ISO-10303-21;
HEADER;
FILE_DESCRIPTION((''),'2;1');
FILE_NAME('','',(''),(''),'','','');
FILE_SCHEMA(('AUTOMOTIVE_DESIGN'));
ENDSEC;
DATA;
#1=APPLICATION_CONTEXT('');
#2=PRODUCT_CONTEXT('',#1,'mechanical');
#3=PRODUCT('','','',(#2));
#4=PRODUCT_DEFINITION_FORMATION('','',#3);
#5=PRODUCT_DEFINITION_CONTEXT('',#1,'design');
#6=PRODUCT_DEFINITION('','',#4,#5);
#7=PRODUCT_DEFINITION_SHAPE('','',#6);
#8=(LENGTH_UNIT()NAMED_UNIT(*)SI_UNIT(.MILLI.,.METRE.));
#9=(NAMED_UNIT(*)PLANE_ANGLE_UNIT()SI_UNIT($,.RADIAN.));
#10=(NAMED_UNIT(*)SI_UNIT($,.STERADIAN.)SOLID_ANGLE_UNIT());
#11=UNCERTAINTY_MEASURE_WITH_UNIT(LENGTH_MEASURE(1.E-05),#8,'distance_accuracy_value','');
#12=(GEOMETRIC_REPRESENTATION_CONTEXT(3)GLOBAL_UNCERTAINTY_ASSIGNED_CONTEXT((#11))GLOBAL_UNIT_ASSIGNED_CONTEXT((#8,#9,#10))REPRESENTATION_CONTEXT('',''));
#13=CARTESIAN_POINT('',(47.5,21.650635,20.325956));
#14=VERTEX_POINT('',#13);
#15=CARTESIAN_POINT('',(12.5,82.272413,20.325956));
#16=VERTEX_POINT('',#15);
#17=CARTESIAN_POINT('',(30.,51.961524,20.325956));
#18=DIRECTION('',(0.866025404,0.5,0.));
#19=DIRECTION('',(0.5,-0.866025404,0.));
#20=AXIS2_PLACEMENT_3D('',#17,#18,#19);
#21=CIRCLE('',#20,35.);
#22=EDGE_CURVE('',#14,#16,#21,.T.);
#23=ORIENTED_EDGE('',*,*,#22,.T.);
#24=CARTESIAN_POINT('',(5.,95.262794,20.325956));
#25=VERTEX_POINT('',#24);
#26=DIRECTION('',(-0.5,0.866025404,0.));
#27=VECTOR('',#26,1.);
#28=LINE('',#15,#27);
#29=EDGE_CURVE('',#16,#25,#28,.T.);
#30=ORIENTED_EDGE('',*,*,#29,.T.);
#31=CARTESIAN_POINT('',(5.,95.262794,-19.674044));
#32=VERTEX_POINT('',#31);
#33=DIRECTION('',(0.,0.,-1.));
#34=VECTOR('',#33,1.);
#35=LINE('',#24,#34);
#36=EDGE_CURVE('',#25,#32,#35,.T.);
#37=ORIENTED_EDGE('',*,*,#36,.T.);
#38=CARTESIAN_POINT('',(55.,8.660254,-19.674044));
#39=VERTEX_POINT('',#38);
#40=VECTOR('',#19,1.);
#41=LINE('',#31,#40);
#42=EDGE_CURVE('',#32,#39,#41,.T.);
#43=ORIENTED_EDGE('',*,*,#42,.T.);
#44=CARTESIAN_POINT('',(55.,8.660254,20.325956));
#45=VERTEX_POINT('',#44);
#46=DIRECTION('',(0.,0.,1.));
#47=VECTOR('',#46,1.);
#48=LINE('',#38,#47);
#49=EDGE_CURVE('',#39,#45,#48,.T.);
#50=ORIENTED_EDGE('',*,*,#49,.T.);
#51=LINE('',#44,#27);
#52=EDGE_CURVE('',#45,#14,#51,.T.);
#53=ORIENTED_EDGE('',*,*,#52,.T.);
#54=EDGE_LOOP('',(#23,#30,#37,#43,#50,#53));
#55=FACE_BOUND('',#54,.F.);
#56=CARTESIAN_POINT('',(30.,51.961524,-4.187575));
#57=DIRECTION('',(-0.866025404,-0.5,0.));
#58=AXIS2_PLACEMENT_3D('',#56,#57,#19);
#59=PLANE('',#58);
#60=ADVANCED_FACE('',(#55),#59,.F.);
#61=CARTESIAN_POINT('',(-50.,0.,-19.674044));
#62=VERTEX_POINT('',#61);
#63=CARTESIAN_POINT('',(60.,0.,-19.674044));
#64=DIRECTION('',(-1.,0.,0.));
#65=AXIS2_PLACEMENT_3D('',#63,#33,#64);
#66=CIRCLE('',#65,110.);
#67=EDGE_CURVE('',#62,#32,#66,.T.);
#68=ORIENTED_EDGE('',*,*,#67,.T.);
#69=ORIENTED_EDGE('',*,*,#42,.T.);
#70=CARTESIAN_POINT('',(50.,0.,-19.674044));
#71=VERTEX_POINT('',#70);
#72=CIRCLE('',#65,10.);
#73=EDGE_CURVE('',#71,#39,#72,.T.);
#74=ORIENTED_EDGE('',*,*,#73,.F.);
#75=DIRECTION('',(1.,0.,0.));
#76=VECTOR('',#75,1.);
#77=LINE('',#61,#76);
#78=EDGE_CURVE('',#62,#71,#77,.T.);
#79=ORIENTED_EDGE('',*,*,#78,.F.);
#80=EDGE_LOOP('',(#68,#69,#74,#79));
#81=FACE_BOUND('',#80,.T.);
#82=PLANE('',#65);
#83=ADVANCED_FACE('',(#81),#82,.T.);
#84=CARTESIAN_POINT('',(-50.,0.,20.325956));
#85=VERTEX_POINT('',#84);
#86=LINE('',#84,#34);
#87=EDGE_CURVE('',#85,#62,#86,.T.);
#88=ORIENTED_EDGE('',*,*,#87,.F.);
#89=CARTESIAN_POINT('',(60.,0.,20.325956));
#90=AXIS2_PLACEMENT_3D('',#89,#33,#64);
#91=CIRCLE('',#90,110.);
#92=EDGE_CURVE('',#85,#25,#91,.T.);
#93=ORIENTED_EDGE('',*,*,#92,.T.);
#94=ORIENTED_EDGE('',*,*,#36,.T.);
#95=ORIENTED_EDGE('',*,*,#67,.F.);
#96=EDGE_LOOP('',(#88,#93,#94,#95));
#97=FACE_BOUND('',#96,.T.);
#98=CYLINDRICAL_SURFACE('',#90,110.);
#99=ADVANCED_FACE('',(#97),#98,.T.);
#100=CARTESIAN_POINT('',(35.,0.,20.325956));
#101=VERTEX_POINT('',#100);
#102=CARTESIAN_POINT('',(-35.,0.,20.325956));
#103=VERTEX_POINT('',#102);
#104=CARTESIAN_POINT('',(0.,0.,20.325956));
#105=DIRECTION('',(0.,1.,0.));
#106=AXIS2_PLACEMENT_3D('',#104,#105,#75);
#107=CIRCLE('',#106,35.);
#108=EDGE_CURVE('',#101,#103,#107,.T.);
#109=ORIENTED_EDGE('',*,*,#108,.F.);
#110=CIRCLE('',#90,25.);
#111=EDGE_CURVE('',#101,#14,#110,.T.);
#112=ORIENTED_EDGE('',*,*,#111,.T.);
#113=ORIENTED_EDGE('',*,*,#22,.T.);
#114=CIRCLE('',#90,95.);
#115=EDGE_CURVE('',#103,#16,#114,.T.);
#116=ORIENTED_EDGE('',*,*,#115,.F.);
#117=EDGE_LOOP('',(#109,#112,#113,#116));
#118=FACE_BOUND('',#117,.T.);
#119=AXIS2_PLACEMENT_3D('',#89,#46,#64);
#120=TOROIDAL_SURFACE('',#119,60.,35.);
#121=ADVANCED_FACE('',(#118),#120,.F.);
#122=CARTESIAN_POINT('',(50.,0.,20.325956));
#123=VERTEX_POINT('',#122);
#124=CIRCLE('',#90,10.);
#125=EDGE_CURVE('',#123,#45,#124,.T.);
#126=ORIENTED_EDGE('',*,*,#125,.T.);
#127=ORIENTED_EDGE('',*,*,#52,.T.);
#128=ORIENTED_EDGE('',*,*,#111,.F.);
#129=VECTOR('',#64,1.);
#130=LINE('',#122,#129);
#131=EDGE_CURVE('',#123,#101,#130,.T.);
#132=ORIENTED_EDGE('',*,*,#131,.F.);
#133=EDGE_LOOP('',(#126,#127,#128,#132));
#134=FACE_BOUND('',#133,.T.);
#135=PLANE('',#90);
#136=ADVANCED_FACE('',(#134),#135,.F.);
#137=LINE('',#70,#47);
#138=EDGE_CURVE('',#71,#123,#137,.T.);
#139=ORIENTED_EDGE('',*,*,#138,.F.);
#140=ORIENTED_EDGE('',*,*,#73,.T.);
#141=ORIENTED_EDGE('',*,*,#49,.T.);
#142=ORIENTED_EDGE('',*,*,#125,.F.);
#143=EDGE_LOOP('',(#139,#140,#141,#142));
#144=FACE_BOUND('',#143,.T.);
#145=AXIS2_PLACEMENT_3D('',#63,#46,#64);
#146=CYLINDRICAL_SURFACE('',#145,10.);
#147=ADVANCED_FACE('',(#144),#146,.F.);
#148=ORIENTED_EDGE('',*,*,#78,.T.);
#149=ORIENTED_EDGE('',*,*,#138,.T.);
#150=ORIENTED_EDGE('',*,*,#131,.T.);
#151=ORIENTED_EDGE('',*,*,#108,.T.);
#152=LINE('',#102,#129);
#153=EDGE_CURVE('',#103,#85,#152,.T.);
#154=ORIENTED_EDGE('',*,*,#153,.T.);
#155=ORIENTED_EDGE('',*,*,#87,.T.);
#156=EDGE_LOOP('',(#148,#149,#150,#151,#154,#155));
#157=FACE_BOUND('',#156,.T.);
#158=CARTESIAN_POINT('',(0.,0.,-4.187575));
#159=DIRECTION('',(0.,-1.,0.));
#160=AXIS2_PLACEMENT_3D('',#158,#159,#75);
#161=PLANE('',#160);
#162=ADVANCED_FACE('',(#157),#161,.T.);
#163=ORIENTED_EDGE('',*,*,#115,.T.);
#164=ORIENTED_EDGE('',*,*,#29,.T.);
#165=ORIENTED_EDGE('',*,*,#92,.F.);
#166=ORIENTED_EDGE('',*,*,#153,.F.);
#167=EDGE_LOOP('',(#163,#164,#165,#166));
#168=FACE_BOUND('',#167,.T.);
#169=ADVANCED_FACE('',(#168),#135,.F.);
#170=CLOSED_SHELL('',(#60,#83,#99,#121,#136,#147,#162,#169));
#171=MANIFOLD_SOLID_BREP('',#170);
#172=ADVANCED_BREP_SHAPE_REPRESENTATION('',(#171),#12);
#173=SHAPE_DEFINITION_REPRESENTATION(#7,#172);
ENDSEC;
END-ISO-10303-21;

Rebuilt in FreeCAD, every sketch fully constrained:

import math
import FreeCAD as App
import Part
import Sketcher
from FreeCAD import Vector
Q = App.Units.Quantity

doc = App.newDocument("Part")
body = doc.addObject("PartDesign::Body", "Body")

sketch1 = body.newObject("Sketcher::SketchObject", "Sketch")
sketch1.AttachmentSupport = (doc.getObject("XZ_Plane"), [""])
sketch1.MapMode = "FlatFace"
sketch1.addGeometry([
    Part.LineSegment(Vector(-50, 20, 0), Vector(-50, -20, 0)),
    Part.LineSegment(Vector(-50, -20, 0), Vector(50, -20, 0)),
    Part.LineSegment(Vector(50, -20, 0), Vector(50, 20, 0)),
    Part.LineSegment(Vector(50, 20, 0), Vector(35, 20, 0)),
    Part.ArcOfCircle(Part.Circle(Vector(0, 20, 0), Vector(0, 0, 1), 35), math.radians(180), math.radians(360)),
    Part.LineSegment(Vector(-35, 20, 0), Vector(-50, 20, 0)),
], False)
sketch1.addGeometry(Part.LineSegment(Vector(60, 20, 0), Vector(60, -20, 0)), True)
sketch1.addConstraint([
    Sketcher.Constraint("Coincident", 0, 2, 1, 1),
    Sketcher.Constraint("Coincident", 1, 2, 2, 1),
    Sketcher.Constraint("Coincident", 2, 2, 3, 1),
    Sketcher.Constraint("Coincident", 3, 2, 4, 2),
    Sketcher.Constraint("Coincident", 4, 1, 5, 1),
    Sketcher.Constraint("Coincident", 5, 2, 0, 1),
    Sketcher.Constraint("Vertical", 0),
    Sketcher.Constraint("Horizontal", 1),
    Sketcher.Constraint("Vertical", 2),
    Sketcher.Constraint("Horizontal", 3),
    Sketcher.Constraint("Horizontal", 5),
    Sketcher.Constraint("Vertical", 6),
    Sketcher.Constraint("Symmetric", 3, 2, 4, 1, -2),
    Sketcher.Constraint("Horizontal", 4, 3, 2, 2),
    Sketcher.Constraint("Horizontal", 5, 2, 6, 1),
    Sketcher.Constraint("Horizontal", 1, 2, 6, 2),
    Sketcher.Constraint("Equal", 3, 5),
    Sketcher.Constraint("Radius", 4, Q("35 mm")),
    Sketcher.Constraint("DistanceX", 1, 1, 1, 2, Q("100 mm")),
    Sketcher.Constraint("DistanceY", 0, 2, 0, 1, Q("40 mm")),
    Sketcher.Constraint("DistanceX", -1, 1, 6, 1, Q("60 mm")),
    Sketcher.Constraint("DistanceY", -1, 1, 4, 3, Q("20.325956 mm")),
])
revolution = body.newObject("PartDesign::Revolution", "Revolution")
revolution.Profile = sketch1
revolution.ReferenceAxis = (sketch1, ["Axis0"])
revolution.Angle = 60

doc.recompute()
